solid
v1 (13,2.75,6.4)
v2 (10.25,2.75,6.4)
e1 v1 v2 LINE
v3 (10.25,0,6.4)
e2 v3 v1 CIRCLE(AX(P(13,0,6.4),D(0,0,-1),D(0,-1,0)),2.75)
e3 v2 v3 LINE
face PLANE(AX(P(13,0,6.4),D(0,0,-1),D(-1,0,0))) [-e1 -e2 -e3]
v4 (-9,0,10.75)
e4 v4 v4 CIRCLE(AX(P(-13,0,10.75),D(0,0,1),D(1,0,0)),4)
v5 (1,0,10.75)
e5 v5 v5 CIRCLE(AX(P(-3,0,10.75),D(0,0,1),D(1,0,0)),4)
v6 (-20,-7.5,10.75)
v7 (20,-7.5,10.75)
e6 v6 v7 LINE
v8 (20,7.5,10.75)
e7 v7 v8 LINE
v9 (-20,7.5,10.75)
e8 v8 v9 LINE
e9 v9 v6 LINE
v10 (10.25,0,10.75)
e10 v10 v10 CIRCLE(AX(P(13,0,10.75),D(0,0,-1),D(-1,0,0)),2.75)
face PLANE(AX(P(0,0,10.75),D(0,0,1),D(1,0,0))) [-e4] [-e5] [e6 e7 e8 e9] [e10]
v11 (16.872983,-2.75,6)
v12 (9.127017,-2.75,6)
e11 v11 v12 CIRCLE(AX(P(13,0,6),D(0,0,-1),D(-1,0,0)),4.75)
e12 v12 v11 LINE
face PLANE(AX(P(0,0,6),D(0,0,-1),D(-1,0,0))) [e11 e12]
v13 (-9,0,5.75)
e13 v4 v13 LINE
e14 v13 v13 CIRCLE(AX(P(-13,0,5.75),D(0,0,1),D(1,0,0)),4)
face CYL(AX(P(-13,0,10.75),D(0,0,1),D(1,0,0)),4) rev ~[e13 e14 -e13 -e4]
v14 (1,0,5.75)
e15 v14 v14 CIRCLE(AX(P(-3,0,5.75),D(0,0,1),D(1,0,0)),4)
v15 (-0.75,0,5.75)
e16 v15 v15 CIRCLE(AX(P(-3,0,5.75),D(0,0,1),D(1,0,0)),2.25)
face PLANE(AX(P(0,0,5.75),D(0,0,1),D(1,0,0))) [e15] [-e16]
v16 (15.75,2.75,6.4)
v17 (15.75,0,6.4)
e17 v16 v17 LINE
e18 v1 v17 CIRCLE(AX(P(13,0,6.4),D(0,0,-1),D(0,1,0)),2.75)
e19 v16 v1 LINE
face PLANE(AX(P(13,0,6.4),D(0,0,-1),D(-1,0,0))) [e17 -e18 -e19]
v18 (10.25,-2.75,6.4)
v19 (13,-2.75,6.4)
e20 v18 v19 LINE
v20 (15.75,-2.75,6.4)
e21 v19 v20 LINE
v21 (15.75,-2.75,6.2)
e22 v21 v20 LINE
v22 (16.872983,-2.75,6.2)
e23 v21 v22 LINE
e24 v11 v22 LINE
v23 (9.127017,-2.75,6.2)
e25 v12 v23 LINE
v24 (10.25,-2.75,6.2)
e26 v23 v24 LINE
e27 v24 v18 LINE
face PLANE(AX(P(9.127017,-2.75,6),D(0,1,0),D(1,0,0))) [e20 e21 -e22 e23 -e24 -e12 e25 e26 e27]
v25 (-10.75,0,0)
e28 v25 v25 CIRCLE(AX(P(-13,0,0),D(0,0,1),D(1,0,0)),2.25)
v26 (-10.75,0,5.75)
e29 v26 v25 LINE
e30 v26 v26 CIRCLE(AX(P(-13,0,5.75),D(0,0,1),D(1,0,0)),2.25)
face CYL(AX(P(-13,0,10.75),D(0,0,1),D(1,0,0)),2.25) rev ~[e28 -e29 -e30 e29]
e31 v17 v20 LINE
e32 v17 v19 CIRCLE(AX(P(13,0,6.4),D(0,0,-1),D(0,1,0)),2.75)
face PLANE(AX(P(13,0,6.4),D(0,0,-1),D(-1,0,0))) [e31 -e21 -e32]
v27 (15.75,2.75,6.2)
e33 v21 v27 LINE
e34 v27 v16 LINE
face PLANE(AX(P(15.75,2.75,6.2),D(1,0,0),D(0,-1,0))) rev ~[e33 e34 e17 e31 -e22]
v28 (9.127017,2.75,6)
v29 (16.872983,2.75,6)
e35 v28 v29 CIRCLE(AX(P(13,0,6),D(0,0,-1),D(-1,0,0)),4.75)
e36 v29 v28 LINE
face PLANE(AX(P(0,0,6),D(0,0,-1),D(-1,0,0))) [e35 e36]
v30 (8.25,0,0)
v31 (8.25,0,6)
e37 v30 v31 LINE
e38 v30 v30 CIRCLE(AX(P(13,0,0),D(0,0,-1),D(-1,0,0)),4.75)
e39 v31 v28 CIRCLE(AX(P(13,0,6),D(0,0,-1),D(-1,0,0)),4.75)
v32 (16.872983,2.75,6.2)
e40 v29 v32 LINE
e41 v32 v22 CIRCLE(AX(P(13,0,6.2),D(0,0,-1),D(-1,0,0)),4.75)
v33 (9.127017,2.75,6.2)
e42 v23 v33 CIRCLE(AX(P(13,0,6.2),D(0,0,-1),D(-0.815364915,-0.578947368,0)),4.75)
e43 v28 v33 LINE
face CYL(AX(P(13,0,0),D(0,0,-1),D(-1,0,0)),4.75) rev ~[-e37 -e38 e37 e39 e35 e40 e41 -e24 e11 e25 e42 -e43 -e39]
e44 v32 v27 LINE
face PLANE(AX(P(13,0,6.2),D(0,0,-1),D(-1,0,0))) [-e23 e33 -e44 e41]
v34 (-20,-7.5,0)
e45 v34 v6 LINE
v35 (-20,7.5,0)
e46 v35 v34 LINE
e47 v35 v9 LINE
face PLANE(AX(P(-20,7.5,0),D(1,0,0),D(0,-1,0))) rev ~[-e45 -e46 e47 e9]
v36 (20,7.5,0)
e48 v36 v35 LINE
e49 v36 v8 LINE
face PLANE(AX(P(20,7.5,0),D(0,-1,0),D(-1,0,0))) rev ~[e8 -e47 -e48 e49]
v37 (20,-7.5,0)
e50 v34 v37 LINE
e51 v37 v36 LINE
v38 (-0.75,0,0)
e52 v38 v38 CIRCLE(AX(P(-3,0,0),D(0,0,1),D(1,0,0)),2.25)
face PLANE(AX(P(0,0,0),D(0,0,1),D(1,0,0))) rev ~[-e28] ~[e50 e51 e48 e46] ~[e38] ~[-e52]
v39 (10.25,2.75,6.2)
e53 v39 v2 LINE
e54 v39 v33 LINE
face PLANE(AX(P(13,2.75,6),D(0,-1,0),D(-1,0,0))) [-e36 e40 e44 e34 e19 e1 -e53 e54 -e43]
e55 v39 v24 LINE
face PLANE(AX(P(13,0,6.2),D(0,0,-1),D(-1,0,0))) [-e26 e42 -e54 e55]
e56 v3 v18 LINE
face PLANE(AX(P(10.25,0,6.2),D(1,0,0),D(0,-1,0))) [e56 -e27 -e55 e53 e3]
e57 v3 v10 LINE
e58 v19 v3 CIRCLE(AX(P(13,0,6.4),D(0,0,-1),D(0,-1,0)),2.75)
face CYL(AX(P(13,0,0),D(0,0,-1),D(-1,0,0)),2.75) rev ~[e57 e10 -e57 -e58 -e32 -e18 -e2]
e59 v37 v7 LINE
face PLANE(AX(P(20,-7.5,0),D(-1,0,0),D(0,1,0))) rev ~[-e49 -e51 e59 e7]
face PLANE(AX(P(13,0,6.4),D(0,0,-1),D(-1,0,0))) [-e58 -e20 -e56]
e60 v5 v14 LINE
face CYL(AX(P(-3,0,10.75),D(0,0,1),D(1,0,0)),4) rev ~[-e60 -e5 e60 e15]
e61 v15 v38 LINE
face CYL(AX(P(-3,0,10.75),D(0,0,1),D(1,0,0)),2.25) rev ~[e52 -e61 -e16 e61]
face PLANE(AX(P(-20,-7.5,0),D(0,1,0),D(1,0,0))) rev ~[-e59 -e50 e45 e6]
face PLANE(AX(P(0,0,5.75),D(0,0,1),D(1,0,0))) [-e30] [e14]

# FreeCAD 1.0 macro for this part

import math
import FreeCAD as App
import Part
import Sketcher


def add_polygon(sketch, points):
    """Adds a closed chain of lines whose ends are joined by coincident constraints."""
    first, n = sketch.GeometryCount, len(points)
    for a, b in zip(points, points[1:] + points[:1]):
        sketch.addGeometry(Part.LineSegment(App.Vector(*a, 0), App.Vector(*b, 0)), False)
    for i in range(n):
        sketch.addConstraint(Sketcher.Constraint("Coincident", first + i, 2, first + (i + 1) % n, 1))

doc = App.newDocument("Part")
body = doc.addObject("PartDesign::Body", "Body")

# Sketch on XY plane
sketch1 = body.newObject("Sketcher::SketchObject", "Sketch")
sketch1.AttachmentSupport = (doc.getObject("XY_Plane"), [""])
sketch1.MapMode = "FlatFace"
add_polygon(sketch1, [(-20, 7.5), (-20, -7.5), (20, -7.5), (20, 7.5)])  # lines 0-3
sketch1.addConstraint([
    Sketcher.Constraint("Vertical", 0),
    Sketcher.Constraint("Horizontal", 1),
    Sketcher.Constraint("Vertical", 2),
    Sketcher.Constraint("Horizontal", 3),
    Sketcher.Constraint("Symmetric", 0, 2, 2, 2, -1, 1),
    Sketcher.Constraint("DistanceX", 1, 1, 1, 2, 40.0),
    Sketcher.Constraint("DistanceY", 0, 2, 0, 1, 15.0),
])
pad1 = body.newObject("PartDesign::Pad", "Pad")
pad1.Profile = sketch1
pad1.Length = 10.75

# Sketch on XY plane
sketch2 = body.newObject("Sketcher::SketchObject", "Sketch001")
sketch2.AttachmentSupport = (doc.getObject("XY_Plane"), [""])
sketch2.MapMode = "FlatFace"
sketch2.AttachmentOffset = App.Placement(App.Vector(0, 0, 10.75), App.Rotation())
sketch2.addGeometry([
    Part.Circle(App.Vector(-13, 0, 0), App.Vector(0, 0, 1), 2.25),
    Part.Circle(App.Vector(-3, 0, 0), App.Vector(0, 0, 1), 2.25),
], False)
sketch2.addConstraint([
    Sketcher.Constraint("Equal", 0, 1),
    Sketcher.Constraint("PointOnObject", 0, 3, -1),
    Sketcher.Constraint("PointOnObject", 1, 3, -1),
    Sketcher.Constraint("Diameter", 0, 4.5),
    Sketcher.Constraint("DistanceX", 0, 3, 1, 3, 10.0),
    Sketcher.Constraint("DistanceX", 0, 3, -1, 1, 13.0),
])
pocket1 = body.newObject("PartDesign::Pocket", "Pocket")
pocket1.Profile = sketch2
pocket1.Type = "ThroughAll"

# Sketch on XY plane
sketch3 = body.newObject("Sketcher::SketchObject", "Sketch002")
sketch3.AttachmentSupport = (doc.getObject("XY_Plane"), [""])
sketch3.MapMode = "FlatFace"
sketch3.AttachmentOffset = App.Placement(App.Vector(0, 0, 10.75), App.Rotation())
sketch3.addGeometry([
    Part.Circle(App.Vector(-13, 0, 0), App.Vector(0, 0, 1), 4),
    Part.Circle(App.Vector(-3, 0, 0), App.Vector(0, 0, 1), 4),
], False)
sketch3.addConstraint([
    Sketcher.Constraint("Equal", 0, 1),
    Sketcher.Constraint("PointOnObject", 0, 3, -1),
    Sketcher.Constraint("PointOnObject", 1, 3, -1),
    Sketcher.Constraint("Diameter", 0, 8.0),
    Sketcher.Constraint("DistanceX", 0, 3, -1, 1, 13.0),
    Sketcher.Constraint("DistanceX", 1, 3, -1, 1, 3.0),
])
pocket2 = body.newObject("PartDesign::Pocket", "Pocket001")
pocket2.Profile = sketch3
pocket2.Length = 5

# Sketch on XY plane
sketch4 = body.newObject("Sketcher::SketchObject", "Sketch003")
sketch4.AttachmentSupport = (doc.getObject("XY_Plane"), [""])
sketch4.MapMode = "FlatFace"
sketch4.addGeometry(Part.Circle(App.Vector(13, 0, 0), App.Vector(0, 0, 1), 2.75), False)
sketch4.addConstraint([
    Sketcher.Constraint("PointOnObject", 0, 3, -1),
    Sketcher.Constraint("Diameter", 0, 5.5),
    Sketcher.Constraint("DistanceX", -1, 1, 0, 3, 13.0),
])
pocket3 = body.newObject("PartDesign::Pocket", "Pocket002")
pocket3.Profile = sketch4
pocket3.Type = "ThroughAll"
pocket3.Reversed = True

# Sketch on XY plane
sketch5 = body.newObject("Sketcher::SketchObject", "Sketch004")
sketch5.AttachmentSupport = (doc.getObject("XY_Plane"), [""])
sketch5.MapMode = "FlatFace"
sketch5.addGeometry(Part.Circle(App.Vector(13, 0, 0), App.Vector(0, 0, 1), 4.75), False)
sketch5.addConstraint([
    Sketcher.Constraint("PointOnObject", 0, 3, -1),
    Sketcher.Constraint("Diameter", 0, 9.5),
    Sketcher.Constraint("DistanceX", -1, 1, 0, 3, 13.0),
])
pocket4 = body.newObject("PartDesign::Pocket", "Pocket003")
pocket4.Profile = sketch5
pocket4.Length = 6
pocket4.Reversed = True

# Sketch on XY plane
sketch6 = body.newObject("Sketcher::SketchObject", "Sketch005")
sketch6.AttachmentSupport = (doc.getObject("XY_Plane"), [""])
sketch6.MapMode = "FlatFace"
sketch6.AttachmentOffset = App.Placement(App.Vector(0, 0, 6), App.Rotation())
sketch6.addGeometry([
    Part.ArcOfCircle(Part.Circle(App.Vector(13, 0, 0), App.Vector(0, 0, 1), 4.75), math.radians(144.62346), math.radians(215.37654)),  # 0
    Part.LineSegment(App.Vector(9.127017, 2.75, 0), App.Vector(13, 2.75, 0)),  # 1
    Part.ArcOfCircle(Part.Circle(App.Vector(13, 0, 0), App.Vector(0, 0, 1), 2.75), math.radians(90), math.radians(270)),  # 2
    Part.LineSegment(App.Vector(13, -2.75, 0), App.Vector(9.127017, -2.75, 0)),  # 3
    Part.LineSegment(App.Vector(13, 2.75, 0), App.Vector(16.872983, 2.75, 0)),  # 4
    Part.ArcOfCircle(Part.Circle(App.Vector(13, 0, 0), App.Vector(0, 0, 1), 4.75), math.radians(-35.37654), math.radians(35.37654)),  # 5
    Part.LineSegment(App.Vector(16.872983, -2.75, 0), App.Vector(13, -2.75, 0)),  # 6
    Part.ArcOfCircle(Part.Circle(App.Vector(13, 0, 0), App.Vector(0, 0, 1), 2.75), math.radians(-90), math.radians(90)),  # 7
], False)
sketch6.addConstraint([
    Sketcher.Constraint("Coincident", 0, 1, 1, 1),
    Sketcher.Constraint("Tangent", 1, 2, 2, 1),
    Sketcher.Constraint("Tangent", 2, 2, 3, 1),
    Sketcher.Constraint("Coincident", 3, 2, 0, 2),
    Sketcher.Constraint("Coincident", 4, 2, 5, 2),
    Sketcher.Constraint("Coincident", 5, 1, 6, 1),
    Sketcher.Constraint("Tangent", 6, 2, 7, 1),
    Sketcher.Constraint("Tangent", 7, 2, 4, 1),
    Sketcher.Constraint("Horizontal", 1),
    Sketcher.Constraint("Horizontal", 3),
    Sketcher.Constraint("Horizontal", 4),
    Sketcher.Constraint("Horizontal", 6),
    Sketcher.Constraint("Coincident", 2, 3, 0, 3),
    Sketcher.Constraint("Coincident", 5, 3, 0, 3),
    Sketcher.Constraint("Coincident", 7, 3, 0, 3),
    Sketcher.Constraint("Equal", 0, 5),
    Sketcher.Constraint("Equal", 2, 7),
    Sketcher.Constraint("PointOnObject", 0, 3, -1),
    Sketcher.Constraint("Radius", 0, 4.75),
    Sketcher.Constraint("Radius", 2, 2.75),
    Sketcher.Constraint("DistanceX", -1, 1, 0, 3, 13.0),
])
pocket5 = body.newObject("PartDesign::Pocket", "Pocket004")
pocket5.Profile = sketch6
pocket5.Length = 0.2
pocket5.Reversed = True

# Sketch on XY plane
sketch7 = body.newObject("Sketcher::SketchObject", "Sketch006")
sketch7.AttachmentSupport = (doc.getObject("XY_Plane"), [""])
sketch7.MapMode = "FlatFace"
sketch7.AttachmentOffset = App.Placement(App.Vector(0, 0, 6.2), App.Rotation())
sketch7.addGeometry([
    Part.LineSegment(App.Vector(13, -2.75, 0), App.Vector(10.25, -2.75, 0)),  # 0
    Part.LineSegment(App.Vector(10.25, -2.75, 0), App.Vector(10.25, 0, 0)),  # 1
    Part.ArcOfCircle(Part.Circle(App.Vector(13, 0, 0), App.Vector(0, 0, 1), 2.75), math.radians(180), math.radians(270)),  # 2
    Part.LineSegment(App.Vector(15.75, -2.75, 0), App.Vector(13, -2.75, 0)),  # 3
    Part.ArcOfCircle(Part.Circle(App.Vector(13, 0, 0), App.Vector(0, 0, 1), 2.75), math.radians(-90), math.radians(0)),  # 4
    Part.LineSegment(App.Vector(15.75, 0, 0), App.Vector(15.75, -2.75, 0)),  # 5
    Part.ArcOfCircle(Part.Circle(App.Vector(13, 0, 0), App.Vector(0, 0, 1), 2.75), math.radians(90), math.radians(180)),  # 6
    Part.LineSegment(App.Vector(10.25, 0, 0), App.Vector(10.25, 2.75, 0)),  # 7
    Part.LineSegment(App.Vector(10.25, 2.75, 0), App.Vector(13, 2.75, 0)),  # 8
    Part.LineSegment(App.Vector(15.75, 2.75, 0), App.Vector(15.75, 0, 0)),  # 9
    Part.ArcOfCircle(Part.Circle(App.Vector(13, 0, 0), App.Vector(0, 0, 1), 2.75), math.radians(0), math.radians(90)),  # 10
    Part.LineSegment(App.Vector(13, 2.75, 0), App.Vector(15.75, 2.75, 0)),  # 11
], False)
sketch7.addConstraint([
    Sketcher.Constraint("Coincident", 0, 2, 1, 1),
    Sketcher.Constraint("Tangent", 1, 2, 2, 1),
    Sketcher.Constraint("Tangent", 2, 2, 0, 1),
    Sketcher.Constraint("Tangent", 3, 2, 4, 1),
    Sketcher.Constraint("Tangent", 4, 2, 5, 1),
    Sketcher.Constraint("Coincident", 5, 2, 3, 1),
    Sketcher.Constraint("Tangent", 6, 2, 7, 1),
    Sketcher.Constraint("Coincident", 7, 2, 8, 1),
    Sketcher.Constraint("Tangent", 8, 2, 6, 1),
    Sketcher.Constraint("Tangent", 9, 2, 10, 1),
    Sketcher.Constraint("Tangent", 10, 2, 11, 1),
    Sketcher.Constraint("Coincident", 11, 2, 9, 1),
    Sketcher.Constraint("Horizontal", 0),
    Sketcher.Constraint("Vertical", 1),
    Sketcher.Constraint("Horizontal", 3),
    Sketcher.Constraint("Vertical", 5),
    Sketcher.Constraint("Vertical", 7),
    Sketcher.Constraint("Horizontal", 8),
    Sketcher.Constraint("Vertical", 9),
    Sketcher.Constraint("Horizontal", 11),
    Sketcher.Constraint("Coincident", 4, 3, 2, 3),
    Sketcher.Constraint("Coincident", 6, 3, 2, 3),
    Sketcher.Constraint("Coincident", 10, 3, 2, 3),
    Sketcher.Constraint("Equal", 2, 4),
    Sketcher.Constraint("Equal", 4, 6),
    Sketcher.Constraint("Equal", 6, 10),
    Sketcher.Constraint("PointOnObject", 2, 3, -1),
    Sketcher.Constraint("Radius", 2, 2.75),
    Sketcher.Constraint("DistanceX", -1, 1, 2, 3, 13.0),
])
pocket6 = body.newObject("PartDesign::Pocket", "Pocket005")
pocket6.Profile = sketch7
pocket6.Length = 0.2
pocket6.Reversed = True

doc.recompute()
